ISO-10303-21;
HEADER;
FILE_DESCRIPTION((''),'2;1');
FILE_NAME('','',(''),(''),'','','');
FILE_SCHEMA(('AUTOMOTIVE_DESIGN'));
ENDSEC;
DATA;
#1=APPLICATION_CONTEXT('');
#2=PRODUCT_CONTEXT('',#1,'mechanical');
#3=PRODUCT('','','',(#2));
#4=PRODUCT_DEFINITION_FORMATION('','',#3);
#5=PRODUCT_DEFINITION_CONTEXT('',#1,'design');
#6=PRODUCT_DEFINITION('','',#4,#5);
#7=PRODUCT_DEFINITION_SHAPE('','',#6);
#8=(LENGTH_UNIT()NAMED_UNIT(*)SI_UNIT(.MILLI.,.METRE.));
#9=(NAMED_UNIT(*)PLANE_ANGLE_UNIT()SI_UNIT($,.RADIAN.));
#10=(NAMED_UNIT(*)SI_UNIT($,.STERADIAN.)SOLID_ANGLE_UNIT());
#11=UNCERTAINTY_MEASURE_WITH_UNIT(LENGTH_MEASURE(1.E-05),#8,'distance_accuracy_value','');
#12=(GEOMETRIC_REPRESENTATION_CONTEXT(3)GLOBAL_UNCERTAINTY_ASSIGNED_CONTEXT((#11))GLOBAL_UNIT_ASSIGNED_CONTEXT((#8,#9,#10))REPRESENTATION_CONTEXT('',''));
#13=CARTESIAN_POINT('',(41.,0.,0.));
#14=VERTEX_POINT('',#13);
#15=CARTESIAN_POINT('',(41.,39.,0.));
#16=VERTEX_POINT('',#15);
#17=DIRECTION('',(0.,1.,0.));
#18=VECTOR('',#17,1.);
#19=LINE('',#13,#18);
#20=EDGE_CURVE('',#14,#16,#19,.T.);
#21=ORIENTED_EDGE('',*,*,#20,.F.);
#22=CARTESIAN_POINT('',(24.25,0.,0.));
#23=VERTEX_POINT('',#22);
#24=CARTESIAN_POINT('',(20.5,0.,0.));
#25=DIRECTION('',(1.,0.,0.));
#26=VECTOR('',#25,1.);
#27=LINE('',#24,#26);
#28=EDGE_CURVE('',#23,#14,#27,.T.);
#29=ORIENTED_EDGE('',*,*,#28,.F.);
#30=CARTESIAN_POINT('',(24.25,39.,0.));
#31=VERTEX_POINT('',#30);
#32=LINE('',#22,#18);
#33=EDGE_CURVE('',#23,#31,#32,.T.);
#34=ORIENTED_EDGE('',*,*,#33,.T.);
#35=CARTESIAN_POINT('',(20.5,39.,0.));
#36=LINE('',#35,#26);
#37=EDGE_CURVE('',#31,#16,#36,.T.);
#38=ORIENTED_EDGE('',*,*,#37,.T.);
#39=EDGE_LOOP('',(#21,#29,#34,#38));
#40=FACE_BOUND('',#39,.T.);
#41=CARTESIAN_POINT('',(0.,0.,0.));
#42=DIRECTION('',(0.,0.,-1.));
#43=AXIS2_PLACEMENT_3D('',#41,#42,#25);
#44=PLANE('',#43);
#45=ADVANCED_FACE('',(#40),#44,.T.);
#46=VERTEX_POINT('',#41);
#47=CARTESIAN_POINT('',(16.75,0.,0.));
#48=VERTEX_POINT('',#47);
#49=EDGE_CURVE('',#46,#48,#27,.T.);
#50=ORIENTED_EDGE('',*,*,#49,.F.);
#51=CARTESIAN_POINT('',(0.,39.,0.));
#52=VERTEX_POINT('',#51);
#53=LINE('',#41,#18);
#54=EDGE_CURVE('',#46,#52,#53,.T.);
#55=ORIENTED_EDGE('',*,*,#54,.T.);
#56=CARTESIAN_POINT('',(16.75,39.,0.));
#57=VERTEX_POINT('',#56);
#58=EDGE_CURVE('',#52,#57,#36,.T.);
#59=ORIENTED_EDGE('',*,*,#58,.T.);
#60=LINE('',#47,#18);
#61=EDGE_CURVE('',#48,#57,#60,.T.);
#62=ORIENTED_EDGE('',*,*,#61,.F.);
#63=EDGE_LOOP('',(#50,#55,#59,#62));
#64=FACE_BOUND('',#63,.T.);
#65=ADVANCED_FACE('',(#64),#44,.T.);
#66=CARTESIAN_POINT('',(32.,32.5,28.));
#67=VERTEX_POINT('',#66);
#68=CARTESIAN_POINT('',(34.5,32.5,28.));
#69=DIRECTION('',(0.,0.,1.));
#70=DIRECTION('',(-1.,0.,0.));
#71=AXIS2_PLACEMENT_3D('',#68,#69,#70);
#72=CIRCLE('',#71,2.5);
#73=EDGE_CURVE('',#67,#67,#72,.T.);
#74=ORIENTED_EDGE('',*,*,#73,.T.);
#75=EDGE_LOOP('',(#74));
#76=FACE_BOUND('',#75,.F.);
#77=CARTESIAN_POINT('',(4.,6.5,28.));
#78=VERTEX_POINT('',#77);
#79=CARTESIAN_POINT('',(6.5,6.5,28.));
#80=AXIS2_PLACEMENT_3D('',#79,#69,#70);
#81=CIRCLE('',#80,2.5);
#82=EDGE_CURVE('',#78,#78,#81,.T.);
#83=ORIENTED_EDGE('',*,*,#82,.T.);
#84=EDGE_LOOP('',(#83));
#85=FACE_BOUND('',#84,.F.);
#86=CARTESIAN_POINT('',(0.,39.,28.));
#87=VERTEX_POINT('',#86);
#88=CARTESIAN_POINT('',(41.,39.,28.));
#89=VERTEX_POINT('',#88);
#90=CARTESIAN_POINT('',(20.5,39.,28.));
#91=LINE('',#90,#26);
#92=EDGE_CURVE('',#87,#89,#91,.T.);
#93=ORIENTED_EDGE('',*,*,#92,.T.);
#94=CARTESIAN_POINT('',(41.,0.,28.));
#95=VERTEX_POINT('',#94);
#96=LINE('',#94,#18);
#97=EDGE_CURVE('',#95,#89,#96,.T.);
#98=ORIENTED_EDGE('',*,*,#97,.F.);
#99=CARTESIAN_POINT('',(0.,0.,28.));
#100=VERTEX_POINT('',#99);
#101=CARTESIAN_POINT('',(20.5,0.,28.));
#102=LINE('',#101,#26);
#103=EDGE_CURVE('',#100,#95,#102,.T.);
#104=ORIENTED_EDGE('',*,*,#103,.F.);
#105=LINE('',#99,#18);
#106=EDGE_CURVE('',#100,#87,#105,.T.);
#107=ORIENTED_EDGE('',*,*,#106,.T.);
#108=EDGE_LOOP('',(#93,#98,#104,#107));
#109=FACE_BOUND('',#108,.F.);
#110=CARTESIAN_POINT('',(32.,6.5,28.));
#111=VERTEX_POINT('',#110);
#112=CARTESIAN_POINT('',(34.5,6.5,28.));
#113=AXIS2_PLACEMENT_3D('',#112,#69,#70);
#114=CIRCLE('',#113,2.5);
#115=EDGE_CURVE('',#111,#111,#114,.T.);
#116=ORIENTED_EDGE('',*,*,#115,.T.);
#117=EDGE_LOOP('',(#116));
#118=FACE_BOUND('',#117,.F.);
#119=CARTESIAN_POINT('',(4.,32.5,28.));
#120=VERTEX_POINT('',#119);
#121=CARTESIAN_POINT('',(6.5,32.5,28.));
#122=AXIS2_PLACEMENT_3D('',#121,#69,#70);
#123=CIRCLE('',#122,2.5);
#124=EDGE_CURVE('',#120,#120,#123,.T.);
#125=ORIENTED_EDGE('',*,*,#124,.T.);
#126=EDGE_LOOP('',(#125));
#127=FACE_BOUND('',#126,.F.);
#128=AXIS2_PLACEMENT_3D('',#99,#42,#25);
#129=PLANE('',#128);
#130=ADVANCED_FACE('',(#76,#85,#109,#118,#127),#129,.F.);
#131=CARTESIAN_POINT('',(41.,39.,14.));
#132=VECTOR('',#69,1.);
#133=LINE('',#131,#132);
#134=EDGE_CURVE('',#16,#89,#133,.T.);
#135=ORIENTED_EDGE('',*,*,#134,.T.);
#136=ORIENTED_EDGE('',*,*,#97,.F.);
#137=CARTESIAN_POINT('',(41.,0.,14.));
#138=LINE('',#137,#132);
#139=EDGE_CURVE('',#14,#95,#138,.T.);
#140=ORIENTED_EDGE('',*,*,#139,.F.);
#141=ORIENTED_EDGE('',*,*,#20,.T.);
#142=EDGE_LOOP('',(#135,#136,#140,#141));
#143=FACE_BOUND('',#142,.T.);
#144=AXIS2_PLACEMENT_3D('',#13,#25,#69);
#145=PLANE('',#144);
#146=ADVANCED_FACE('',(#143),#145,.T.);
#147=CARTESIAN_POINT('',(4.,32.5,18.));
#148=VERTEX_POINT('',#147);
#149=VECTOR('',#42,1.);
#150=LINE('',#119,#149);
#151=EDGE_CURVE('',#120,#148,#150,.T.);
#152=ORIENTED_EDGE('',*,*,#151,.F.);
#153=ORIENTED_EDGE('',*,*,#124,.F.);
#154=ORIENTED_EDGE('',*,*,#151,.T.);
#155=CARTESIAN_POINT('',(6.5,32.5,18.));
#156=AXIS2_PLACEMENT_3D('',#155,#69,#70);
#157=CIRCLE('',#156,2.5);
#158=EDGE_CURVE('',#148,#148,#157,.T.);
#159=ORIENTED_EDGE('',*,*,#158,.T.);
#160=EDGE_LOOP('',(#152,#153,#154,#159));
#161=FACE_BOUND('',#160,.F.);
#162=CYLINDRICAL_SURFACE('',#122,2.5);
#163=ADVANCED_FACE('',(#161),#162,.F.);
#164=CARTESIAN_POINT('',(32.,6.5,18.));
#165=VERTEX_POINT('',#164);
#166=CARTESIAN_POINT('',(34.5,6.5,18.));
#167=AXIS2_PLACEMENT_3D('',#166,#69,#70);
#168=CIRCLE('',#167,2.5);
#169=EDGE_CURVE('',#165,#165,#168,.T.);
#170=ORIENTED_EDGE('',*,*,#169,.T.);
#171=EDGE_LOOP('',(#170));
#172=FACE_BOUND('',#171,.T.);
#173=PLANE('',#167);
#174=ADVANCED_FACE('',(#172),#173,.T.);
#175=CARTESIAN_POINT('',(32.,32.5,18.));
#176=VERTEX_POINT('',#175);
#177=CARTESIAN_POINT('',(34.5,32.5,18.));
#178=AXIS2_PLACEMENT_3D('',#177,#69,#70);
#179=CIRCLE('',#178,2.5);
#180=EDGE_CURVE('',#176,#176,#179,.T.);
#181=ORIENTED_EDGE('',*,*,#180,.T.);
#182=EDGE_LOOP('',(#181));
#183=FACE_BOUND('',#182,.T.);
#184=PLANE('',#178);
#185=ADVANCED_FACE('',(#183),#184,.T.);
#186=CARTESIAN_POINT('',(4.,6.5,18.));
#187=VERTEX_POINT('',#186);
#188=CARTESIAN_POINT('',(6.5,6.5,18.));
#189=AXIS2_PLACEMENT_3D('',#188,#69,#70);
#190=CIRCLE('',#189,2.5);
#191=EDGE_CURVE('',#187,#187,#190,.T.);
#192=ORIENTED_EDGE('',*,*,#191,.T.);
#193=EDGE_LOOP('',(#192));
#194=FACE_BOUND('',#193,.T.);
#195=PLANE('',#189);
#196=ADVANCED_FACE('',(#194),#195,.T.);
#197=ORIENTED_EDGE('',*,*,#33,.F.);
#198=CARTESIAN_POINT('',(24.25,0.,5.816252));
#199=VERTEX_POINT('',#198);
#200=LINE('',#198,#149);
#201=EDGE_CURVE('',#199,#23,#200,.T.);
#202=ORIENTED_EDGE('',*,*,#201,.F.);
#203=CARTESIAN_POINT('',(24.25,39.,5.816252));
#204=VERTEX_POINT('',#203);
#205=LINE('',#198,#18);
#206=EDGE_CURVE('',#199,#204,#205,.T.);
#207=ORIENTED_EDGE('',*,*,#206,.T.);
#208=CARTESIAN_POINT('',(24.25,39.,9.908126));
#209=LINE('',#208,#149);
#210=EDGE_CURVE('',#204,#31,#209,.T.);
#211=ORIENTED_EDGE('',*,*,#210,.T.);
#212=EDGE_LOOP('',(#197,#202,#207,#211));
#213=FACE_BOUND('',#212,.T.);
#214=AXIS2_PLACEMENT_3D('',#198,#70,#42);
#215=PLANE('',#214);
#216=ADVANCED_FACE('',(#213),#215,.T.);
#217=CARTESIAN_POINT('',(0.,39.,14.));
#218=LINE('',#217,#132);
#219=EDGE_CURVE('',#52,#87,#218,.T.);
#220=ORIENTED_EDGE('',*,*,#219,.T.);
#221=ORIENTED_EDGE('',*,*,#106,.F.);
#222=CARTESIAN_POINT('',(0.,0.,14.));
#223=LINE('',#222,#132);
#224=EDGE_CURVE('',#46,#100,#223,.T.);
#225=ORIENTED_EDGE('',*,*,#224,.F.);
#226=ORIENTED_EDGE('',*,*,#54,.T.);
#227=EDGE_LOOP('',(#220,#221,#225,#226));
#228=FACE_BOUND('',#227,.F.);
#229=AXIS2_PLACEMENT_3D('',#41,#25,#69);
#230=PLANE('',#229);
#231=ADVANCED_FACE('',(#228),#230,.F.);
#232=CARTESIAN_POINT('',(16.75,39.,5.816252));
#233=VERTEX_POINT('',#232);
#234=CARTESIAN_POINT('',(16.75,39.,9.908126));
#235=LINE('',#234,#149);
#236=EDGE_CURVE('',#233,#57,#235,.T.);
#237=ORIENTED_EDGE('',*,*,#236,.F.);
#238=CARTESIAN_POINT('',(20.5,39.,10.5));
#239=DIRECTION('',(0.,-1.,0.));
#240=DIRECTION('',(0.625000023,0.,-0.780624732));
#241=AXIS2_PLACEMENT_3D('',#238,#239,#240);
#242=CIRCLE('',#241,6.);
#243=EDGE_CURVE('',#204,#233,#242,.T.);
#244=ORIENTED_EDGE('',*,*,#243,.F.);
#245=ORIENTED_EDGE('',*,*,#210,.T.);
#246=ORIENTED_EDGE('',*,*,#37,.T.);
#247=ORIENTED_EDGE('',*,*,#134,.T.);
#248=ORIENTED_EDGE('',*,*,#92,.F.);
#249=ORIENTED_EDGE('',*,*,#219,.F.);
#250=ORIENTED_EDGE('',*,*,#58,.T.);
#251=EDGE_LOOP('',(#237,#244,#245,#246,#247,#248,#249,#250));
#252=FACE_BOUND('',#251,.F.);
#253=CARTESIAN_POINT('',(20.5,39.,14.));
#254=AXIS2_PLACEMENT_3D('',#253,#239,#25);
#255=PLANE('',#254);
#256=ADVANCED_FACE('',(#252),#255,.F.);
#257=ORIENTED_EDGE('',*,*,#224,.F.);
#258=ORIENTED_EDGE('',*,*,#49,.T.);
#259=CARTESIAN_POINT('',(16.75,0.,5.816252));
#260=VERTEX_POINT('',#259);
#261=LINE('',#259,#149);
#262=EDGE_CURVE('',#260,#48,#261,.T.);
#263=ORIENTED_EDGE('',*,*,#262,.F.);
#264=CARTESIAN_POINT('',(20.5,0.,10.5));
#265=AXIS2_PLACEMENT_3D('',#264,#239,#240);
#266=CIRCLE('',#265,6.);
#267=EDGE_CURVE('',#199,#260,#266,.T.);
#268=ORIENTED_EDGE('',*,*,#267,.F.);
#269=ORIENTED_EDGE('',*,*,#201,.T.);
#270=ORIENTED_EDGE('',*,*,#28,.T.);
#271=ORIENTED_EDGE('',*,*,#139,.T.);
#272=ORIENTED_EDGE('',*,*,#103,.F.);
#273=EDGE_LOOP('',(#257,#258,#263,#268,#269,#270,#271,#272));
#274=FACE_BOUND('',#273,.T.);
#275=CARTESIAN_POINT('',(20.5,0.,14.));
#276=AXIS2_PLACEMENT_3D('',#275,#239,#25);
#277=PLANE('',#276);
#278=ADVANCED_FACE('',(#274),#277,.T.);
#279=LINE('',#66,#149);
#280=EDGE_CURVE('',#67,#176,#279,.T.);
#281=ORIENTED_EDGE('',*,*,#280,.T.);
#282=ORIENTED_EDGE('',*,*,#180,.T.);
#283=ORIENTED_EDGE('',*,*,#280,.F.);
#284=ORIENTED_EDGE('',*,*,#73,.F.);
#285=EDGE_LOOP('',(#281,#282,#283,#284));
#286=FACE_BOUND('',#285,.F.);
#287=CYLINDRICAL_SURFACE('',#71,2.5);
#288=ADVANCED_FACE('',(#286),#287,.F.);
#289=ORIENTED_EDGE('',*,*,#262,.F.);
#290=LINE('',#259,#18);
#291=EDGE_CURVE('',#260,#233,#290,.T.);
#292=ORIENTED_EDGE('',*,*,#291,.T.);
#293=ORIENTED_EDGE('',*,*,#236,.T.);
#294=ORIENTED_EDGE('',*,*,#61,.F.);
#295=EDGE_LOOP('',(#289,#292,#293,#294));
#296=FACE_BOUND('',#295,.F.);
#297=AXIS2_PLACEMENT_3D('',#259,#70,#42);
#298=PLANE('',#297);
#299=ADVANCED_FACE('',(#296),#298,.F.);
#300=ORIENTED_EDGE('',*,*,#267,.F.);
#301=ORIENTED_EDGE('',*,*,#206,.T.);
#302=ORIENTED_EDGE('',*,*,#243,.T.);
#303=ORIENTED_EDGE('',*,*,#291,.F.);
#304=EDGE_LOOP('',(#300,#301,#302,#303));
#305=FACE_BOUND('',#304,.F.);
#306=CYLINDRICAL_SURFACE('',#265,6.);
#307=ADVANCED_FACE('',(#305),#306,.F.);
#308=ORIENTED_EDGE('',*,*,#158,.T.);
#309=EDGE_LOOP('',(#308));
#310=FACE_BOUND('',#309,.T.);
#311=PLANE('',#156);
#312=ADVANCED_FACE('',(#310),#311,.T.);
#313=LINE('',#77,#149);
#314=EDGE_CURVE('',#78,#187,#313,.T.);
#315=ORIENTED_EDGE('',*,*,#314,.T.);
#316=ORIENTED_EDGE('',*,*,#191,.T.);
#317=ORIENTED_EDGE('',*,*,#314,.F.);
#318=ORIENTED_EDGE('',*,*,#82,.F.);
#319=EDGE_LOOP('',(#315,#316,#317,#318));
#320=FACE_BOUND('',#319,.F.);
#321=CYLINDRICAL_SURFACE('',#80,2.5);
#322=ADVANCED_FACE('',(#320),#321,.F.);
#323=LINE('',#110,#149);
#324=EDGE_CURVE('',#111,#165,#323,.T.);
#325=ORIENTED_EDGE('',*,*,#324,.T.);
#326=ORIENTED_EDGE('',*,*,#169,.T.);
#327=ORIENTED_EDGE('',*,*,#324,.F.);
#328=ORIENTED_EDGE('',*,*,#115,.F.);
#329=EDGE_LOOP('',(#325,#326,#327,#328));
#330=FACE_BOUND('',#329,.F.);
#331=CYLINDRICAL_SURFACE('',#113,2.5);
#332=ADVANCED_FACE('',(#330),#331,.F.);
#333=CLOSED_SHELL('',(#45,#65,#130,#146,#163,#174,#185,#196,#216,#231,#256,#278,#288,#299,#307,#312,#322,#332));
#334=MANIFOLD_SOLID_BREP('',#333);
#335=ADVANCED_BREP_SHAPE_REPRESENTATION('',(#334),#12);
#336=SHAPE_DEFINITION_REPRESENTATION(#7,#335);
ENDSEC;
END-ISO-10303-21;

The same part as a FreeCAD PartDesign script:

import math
import FreeCAD as App
import Part
import Sketcher

doc = App.newDocument("Part")
body = doc.addObject("PartDesign::Body", "Body")

sketch1 = body.newObject("Sketcher::SketchObject", "Sketch")
sketch1.AttachmentSupport = (doc.getObject("XZ_Plane"), [""])
sketch1.MapMode = "FlatFace"
sketch1.addGeometry(Part.LineSegment(App.Vector(0, 28, 0), App.Vector(0, 0, 0)), False)
sketch1.addGeometry(Part.LineSegment(App.Vector(0, 0, 0), App.Vector(41, 0, 0)), False)
sketch1.addGeometry(Part.LineSegment(App.Vector(41, 0, 0), App.Vector(41, 28, 0)), False)
sketch1.addGeometry(Part.LineSegment(App.Vector(41, 28, 0), App.Vector(0, 28, 0)), False)
sketch1.addConstraint(Sketcher.Constraint("Coincident", 0, 2, 1, 1))
sketch1.addConstraint(Sketcher.Constraint("Coincident", 1, 2, 2, 1))
sketch1.addConstraint(Sketcher.Constraint("Coincident", 2, 2, 3, 1))
sketch1.addConstraint(Sketcher.Constraint("Coincident", 3, 2, 0, 1))
sketch1.addConstraint(Sketcher.Constraint("Vertical", 0))
sketch1.addConstraint(Sketcher.Constraint("Horizontal", 1))
sketch1.addConstraint(Sketcher.Constraint("Vertical", 2))
sketch1.addConstraint(Sketcher.Constraint("Horizontal", 3))
sketch1.addConstraint(Sketcher.Constraint("Coincident", 0, 2, -1, 1))
sketch1.addConstraint(Sketcher.Constraint("DistanceX", 1, 1, 1, 2, 41.0))
sketch1.addConstraint(Sketcher.Constraint("DistanceY", 0, 2, 0, 1, 28.0))
pad1 = body.newObject("PartDesign::Pad", "Pad")
pad1.Profile = sketch1
pad1.Length = 39
pad1.Reversed = True

sketch2 = body.newObject("Sketcher::SketchObject", "Sketch001")
sketch2.AttachmentSupport = (doc.getObject("XZ_Plane"), [""])
sketch2.MapMode = "FlatFace"
sketch2.addGeometry(Part.ArcOfCircle(Part.Circle(App.Vector(20, 11, 0), App.Vector(0, 0, 1), 6), math.radians(-51), math.radians(231)), False)
sketch2.addGeometry(Part.LineSegment(App.Vector(17, 6, 0), App.Vector(17, 0, 0)), False)
sketch2.addGeometry(Part.LineSegment(App.Vector(17, 0, 0), App.Vector(24, 0, 0)), False)
sketch2.addGeometry(Part.LineSegment(App.Vector(24, 0, 0), App.Vector(24, 6, 0)), False)
sketch2.addConstraint(Sketcher.Constraint("Coincident", 0, 2, 1, 1))
sketch2.addConstraint(Sketcher.Constraint("Coincident", 1, 2, 2, 1))
sketch2.addConstraint(Sketcher.Constraint("Coincident", 2, 2, 3, 1))
sketch2.addConstraint(Sketcher.Constraint("Coincident", 3, 2, 0, 1))
sketch2.addConstraint(Sketcher.Constraint("Vertical", 1))
sketch2.addConstraint(Sketcher.Constraint("Horizontal", 2))
sketch2.addConstraint(Sketcher.Constraint("Vertical", 3))
sketch2.addConstraint(Sketcher.Constraint("PointOnObject", 1, 2, -1))
sketch2.addConstraint(Sketcher.Constraint("Horizontal", 0, 2, 3, 2))
sketch2.addConstraint(Sketcher.Constraint("Radius", 0, 6.0))
sketch2.addConstraint(Sketcher.Constraint("DistanceX", 2, 1, 2, 2, 7.5))
sketch2.addConstraint(Sketcher.Constraint("DistanceX", -1, 1, 0, 3, 20.5))
sketch2.addConstraint(Sketcher.Constraint("DistanceY", -1, 1, 0, 3, 10.5))
pocket1 = body.newObject("PartDesign::Pocket", "Pocket")
pocket1.Profile = sketch2
pocket1.Type = "ThroughAll"

sketch3 = body.newObject("Sketcher::SketchObject", "Sketch002")
sketch3.AttachmentSupport = (doc.getObject("XY_Plane"), [""])
sketch3.MapMode = "FlatFace"
sketch3.AttachmentOffset = App.Placement(App.Vector(0, 0, 28), App.Rotation())
sketch3.addGeometry(Part.Circle(App.Vector(34.5, 6.5, 0), App.Vector(0, 0, 1), 2.5), False)
sketch3.addGeometry(Part.Circle(App.Vector(6.5, 6.5, 0), App.Vector(0, 0, 1), 2.5), False)
sketch3.addGeometry(Part.Circle(App.Vector(34.5, 32.5, 0), App.Vector(0, 0, 1), 2.5), False)
sketch3.addGeometry(Part.Circle(App.Vector(6.5, 32.5, 0), App.Vector(0, 0, 1), 2.5), False)
sketch3.addConstraint(Sketcher.Constraint("Equal", 0, 1))
sketch3.addConstraint(Sketcher.Constraint("Equal", 1, 2))
sketch3.addConstraint(Sketcher.Constraint("Equal", 2, 3))
sketch3.addConstraint(Sketcher.Constraint("Horizontal", 0, 3, 1, 3))
sketch3.addConstraint(Sketcher.Constraint("Horizontal", 2, 3, 3, 3))
sketch3.addConstraint(Sketcher.Constraint("Vertical", 0, 3, 2, 3))
sketch3.addConstraint(Sketcher.Constraint("Vertical", 1, 3, 3, 3))
sketch3.addConstraint(Sketcher.Constraint("Diameter", 0, 5.0))
sketch3.addConstraint(Sketcher.Constraint("DistanceX", 1, 3, 0, 3, 28.0))
sketch3.addConstraint(Sketcher.Constraint("DistanceY", 0, 3, 2, 3, 26.0))
sketch3.addConstraint(Sketcher.Constraint("DistanceX", -1, 1, 0, 3, 34.5))
sketch3.addConstraint(Sketcher.Constraint("DistanceY", -1, 1, 0, 3, 6.5))
pocket2 = body.newObject("PartDesign::Pocket", "Pocket001")
pocket2.Profile = sketch3
pocket2.Length = 10

doc.recompute()
